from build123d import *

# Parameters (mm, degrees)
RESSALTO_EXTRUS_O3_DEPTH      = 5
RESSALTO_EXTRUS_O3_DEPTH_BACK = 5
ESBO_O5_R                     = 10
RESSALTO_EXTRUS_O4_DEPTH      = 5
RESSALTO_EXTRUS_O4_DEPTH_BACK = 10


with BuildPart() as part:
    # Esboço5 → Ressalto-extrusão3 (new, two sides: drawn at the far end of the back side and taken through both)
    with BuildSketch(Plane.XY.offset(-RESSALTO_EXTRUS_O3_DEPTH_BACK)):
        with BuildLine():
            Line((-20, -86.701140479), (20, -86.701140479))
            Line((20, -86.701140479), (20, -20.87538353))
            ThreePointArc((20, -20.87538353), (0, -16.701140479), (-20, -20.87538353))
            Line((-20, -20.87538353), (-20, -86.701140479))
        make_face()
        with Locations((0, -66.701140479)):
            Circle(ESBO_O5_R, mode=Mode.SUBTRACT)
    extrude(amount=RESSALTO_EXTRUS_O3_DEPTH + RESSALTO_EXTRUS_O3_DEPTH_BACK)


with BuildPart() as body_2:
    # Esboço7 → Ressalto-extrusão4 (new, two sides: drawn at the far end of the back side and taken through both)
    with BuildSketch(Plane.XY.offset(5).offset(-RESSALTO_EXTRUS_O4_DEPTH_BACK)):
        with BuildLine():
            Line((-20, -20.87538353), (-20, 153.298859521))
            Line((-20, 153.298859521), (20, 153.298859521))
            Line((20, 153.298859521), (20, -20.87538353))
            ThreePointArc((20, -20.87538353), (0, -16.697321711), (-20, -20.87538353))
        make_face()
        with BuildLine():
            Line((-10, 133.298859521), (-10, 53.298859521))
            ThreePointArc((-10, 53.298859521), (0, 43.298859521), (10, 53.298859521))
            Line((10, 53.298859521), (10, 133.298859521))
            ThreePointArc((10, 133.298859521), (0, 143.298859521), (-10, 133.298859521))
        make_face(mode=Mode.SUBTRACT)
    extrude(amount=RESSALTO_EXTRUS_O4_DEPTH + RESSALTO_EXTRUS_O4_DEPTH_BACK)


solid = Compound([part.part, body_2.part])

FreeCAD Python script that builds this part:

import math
import FreeCAD as App
import Part
import Sketcher
from FreeCAD import Vector
Q = App.Units.Quantity

doc = App.newDocument("Part")
body = doc.addObject("PartDesign::Body", "Body")

# Sketch on XY plane
sketch1 = body.newObject("Sketcher::SketchObject", "Sketch")
sketch1.AttachmentSupport = (doc.getObject("XY_Plane"), [""])
sketch1.MapMode = "FlatFace"
sketch1.addGeometry([
    Part.LineSegment(Vector(-20, -86.70114, 0), Vector(20, -86.70114, 0)),  # 0
    Part.LineSegment(Vector(20, -86.70114, 0), Vector(20, -20.875384, 0)),  # 1
    Part.ArcOfCircle(Part.Circle(Vector(0, -66.70114, 0), Vector(0, 0, 1), 50), math.radians(66.421822), math.radians(113.578178)),  # 2
    Part.LineSegment(Vector(-20, -20.875384, 0), Vector(-20, -86.70114, 0)),  # 3
    Part.Circle(Vector(0, -66.70114, 0), Vector(0, 0, 1), 10),  # 4
], False)
sketch1.addConstraint([
    Sketcher.Constraint("Coincident", 0, 2, 1, 1),
    Sketcher.Constraint("Coincident", 1, 2, 2, 1),
    Sketcher.Constraint("Coincident", 2, 2, 3, 1),
    Sketcher.Constraint("Coincident", 3, 2, 0, 1),
    Sketcher.Constraint("Horizontal", 0),
    Sketcher.Constraint("Vertical", 1),
    Sketcher.Constraint("Vertical", 3),
    Sketcher.Constraint("Coincident", 4, 3, 2, 3),
    Sketcher.Constraint("Symmetric", 1, 2, 2, 2, -2),
    Sketcher.Constraint("Diameter", 4, Q("20 mm")),
    Sketcher.Constraint("Radius", 2, Q("50 mm")),
    Sketcher.Constraint("DistanceX", 0, 1, 0, 2, Q("40 mm")),
    Sketcher.Constraint("DistanceY", 0, 2, 4, 3, Q("20 mm")),
    Sketcher.Constraint("DistanceY", 2, 3, -1, 1, Q("66.70114 mm")),
])
pad1 = body.newObject("PartDesign::Pad", "Pad")
pad1.Profile = sketch1
pad1.Type = "TwoLengths"
pad1.Length = 5
pad1.Length2 = 5
body2 = doc.addObject("PartDesign::Body", "Body001")

# Sketch on XY plane
sketch2 = body2.newObject("Sketcher::SketchObject", "Sketch001")
sketch2.AttachmentSupport = (doc.getObject("XY_Plane001"), [""])
sketch2.MapMode = "FlatFace"
sketch2.AttachmentOffset = App.Placement(Vector(0, 0, 5), App.Rotation())
sketch2.addGeometry([
    Part.LineSegment(Vector(-20, 153.29886, 0), Vector(-20, -20.875384, 0)),  # 0
    Part.ArcOfCircle(Part.Circle(Vector(0, -66.655438, 0), Vector(0, 0, 1), 49.958117), math.radians(66.400856), math.radians(113.599144)),  # 1
    Part.LineSegment(Vector(20, -20.875384, 0), Vector(20, 153.29886, 0)),  # 2
    Part.LineSegment(Vector(20, 153.29886, 0), Vector(-20, 153.29886, 0)),  # 3
    Part.ArcOfCircle(Part.Circle(Vector(0, 133.29886, 0), Vector(0, 0, 1), 10), math.radians(0), math.radians(180)),  # 4
    Part.LineSegment(Vector(10, 133.29886, 0), Vector(10, 53.29886, 0)),  # 5
    Part.ArcOfCircle(Part.Circle(Vector(0, 53.29886, 0), Vector(0, 0, 1), 10), math.radians(180), math.radians(360)),  # 6
    Part.LineSegment(Vector(-10, 53.29886, 0), Vector(-10, 133.29886, 0)),  # 7
], False)
sketch2.addConstraint([
    Sketcher.Constraint("Coincident", 0, 2, 1, 2),
    Sketcher.Constraint("Coincident", 1, 1, 2, 1),
    Sketcher.Constraint("Coincident", 2, 2, 3, 1),
    Sketcher.Constraint("Coincident", 3, 2, 0, 1),
    Sketcher.Constraint("Tangent", 4, 1, 5, 1),
    Sketcher.Constraint("Tangent", 5, 2, 6, 2),
    Sketcher.Constraint("Tangent", 6, 1, 7, 1),
    Sketcher.Constraint("Tangent", 7, 2, 4, 2),
    Sketcher.Constraint("Vertical", 0),
    Sketcher.Constraint("Vertical", 2),
    Sketcher.Constraint("Horizontal", 3),
    Sketcher.Constraint("Vertical", 5),
    Sketcher.Constraint("Vertical", 7),
    Sketcher.Constraint("Symmetric", 0, 2, 1, 1, -2),
    Sketcher.Constraint("PointOnObject", 4, 3, -2),
    Sketcher.Constraint("Radius", 4, Q("10 mm")),
    Sketcher.Constraint("DistanceX", 3, 2, 3, 1, Q("40 mm")),
    Sketcher.Constraint("DistanceY", 5, 2, 5, 1, Q("80 mm")),
    Sketcher.Constraint("DistanceY", 4, 3, 2, 2, Q("20 mm")),
    Sketcher.Constraint("Radius", 1, Q("49.958117 mm")),
    Sketcher.Constraint("DistanceY", 1, 3, 4, 3, Q("199.954298 mm")),
    Sketcher.Constraint("DistanceY", 1, 3, -1, 1, Q("66.655438 mm")),
])
pad2 = body2.newObject("PartDesign::Pad", "Pad001")
pad2.Profile = sketch2
pad2.Type = "TwoLengths"
pad2.Length = 5
pad2.Length2 = 10

doc.recompute()
